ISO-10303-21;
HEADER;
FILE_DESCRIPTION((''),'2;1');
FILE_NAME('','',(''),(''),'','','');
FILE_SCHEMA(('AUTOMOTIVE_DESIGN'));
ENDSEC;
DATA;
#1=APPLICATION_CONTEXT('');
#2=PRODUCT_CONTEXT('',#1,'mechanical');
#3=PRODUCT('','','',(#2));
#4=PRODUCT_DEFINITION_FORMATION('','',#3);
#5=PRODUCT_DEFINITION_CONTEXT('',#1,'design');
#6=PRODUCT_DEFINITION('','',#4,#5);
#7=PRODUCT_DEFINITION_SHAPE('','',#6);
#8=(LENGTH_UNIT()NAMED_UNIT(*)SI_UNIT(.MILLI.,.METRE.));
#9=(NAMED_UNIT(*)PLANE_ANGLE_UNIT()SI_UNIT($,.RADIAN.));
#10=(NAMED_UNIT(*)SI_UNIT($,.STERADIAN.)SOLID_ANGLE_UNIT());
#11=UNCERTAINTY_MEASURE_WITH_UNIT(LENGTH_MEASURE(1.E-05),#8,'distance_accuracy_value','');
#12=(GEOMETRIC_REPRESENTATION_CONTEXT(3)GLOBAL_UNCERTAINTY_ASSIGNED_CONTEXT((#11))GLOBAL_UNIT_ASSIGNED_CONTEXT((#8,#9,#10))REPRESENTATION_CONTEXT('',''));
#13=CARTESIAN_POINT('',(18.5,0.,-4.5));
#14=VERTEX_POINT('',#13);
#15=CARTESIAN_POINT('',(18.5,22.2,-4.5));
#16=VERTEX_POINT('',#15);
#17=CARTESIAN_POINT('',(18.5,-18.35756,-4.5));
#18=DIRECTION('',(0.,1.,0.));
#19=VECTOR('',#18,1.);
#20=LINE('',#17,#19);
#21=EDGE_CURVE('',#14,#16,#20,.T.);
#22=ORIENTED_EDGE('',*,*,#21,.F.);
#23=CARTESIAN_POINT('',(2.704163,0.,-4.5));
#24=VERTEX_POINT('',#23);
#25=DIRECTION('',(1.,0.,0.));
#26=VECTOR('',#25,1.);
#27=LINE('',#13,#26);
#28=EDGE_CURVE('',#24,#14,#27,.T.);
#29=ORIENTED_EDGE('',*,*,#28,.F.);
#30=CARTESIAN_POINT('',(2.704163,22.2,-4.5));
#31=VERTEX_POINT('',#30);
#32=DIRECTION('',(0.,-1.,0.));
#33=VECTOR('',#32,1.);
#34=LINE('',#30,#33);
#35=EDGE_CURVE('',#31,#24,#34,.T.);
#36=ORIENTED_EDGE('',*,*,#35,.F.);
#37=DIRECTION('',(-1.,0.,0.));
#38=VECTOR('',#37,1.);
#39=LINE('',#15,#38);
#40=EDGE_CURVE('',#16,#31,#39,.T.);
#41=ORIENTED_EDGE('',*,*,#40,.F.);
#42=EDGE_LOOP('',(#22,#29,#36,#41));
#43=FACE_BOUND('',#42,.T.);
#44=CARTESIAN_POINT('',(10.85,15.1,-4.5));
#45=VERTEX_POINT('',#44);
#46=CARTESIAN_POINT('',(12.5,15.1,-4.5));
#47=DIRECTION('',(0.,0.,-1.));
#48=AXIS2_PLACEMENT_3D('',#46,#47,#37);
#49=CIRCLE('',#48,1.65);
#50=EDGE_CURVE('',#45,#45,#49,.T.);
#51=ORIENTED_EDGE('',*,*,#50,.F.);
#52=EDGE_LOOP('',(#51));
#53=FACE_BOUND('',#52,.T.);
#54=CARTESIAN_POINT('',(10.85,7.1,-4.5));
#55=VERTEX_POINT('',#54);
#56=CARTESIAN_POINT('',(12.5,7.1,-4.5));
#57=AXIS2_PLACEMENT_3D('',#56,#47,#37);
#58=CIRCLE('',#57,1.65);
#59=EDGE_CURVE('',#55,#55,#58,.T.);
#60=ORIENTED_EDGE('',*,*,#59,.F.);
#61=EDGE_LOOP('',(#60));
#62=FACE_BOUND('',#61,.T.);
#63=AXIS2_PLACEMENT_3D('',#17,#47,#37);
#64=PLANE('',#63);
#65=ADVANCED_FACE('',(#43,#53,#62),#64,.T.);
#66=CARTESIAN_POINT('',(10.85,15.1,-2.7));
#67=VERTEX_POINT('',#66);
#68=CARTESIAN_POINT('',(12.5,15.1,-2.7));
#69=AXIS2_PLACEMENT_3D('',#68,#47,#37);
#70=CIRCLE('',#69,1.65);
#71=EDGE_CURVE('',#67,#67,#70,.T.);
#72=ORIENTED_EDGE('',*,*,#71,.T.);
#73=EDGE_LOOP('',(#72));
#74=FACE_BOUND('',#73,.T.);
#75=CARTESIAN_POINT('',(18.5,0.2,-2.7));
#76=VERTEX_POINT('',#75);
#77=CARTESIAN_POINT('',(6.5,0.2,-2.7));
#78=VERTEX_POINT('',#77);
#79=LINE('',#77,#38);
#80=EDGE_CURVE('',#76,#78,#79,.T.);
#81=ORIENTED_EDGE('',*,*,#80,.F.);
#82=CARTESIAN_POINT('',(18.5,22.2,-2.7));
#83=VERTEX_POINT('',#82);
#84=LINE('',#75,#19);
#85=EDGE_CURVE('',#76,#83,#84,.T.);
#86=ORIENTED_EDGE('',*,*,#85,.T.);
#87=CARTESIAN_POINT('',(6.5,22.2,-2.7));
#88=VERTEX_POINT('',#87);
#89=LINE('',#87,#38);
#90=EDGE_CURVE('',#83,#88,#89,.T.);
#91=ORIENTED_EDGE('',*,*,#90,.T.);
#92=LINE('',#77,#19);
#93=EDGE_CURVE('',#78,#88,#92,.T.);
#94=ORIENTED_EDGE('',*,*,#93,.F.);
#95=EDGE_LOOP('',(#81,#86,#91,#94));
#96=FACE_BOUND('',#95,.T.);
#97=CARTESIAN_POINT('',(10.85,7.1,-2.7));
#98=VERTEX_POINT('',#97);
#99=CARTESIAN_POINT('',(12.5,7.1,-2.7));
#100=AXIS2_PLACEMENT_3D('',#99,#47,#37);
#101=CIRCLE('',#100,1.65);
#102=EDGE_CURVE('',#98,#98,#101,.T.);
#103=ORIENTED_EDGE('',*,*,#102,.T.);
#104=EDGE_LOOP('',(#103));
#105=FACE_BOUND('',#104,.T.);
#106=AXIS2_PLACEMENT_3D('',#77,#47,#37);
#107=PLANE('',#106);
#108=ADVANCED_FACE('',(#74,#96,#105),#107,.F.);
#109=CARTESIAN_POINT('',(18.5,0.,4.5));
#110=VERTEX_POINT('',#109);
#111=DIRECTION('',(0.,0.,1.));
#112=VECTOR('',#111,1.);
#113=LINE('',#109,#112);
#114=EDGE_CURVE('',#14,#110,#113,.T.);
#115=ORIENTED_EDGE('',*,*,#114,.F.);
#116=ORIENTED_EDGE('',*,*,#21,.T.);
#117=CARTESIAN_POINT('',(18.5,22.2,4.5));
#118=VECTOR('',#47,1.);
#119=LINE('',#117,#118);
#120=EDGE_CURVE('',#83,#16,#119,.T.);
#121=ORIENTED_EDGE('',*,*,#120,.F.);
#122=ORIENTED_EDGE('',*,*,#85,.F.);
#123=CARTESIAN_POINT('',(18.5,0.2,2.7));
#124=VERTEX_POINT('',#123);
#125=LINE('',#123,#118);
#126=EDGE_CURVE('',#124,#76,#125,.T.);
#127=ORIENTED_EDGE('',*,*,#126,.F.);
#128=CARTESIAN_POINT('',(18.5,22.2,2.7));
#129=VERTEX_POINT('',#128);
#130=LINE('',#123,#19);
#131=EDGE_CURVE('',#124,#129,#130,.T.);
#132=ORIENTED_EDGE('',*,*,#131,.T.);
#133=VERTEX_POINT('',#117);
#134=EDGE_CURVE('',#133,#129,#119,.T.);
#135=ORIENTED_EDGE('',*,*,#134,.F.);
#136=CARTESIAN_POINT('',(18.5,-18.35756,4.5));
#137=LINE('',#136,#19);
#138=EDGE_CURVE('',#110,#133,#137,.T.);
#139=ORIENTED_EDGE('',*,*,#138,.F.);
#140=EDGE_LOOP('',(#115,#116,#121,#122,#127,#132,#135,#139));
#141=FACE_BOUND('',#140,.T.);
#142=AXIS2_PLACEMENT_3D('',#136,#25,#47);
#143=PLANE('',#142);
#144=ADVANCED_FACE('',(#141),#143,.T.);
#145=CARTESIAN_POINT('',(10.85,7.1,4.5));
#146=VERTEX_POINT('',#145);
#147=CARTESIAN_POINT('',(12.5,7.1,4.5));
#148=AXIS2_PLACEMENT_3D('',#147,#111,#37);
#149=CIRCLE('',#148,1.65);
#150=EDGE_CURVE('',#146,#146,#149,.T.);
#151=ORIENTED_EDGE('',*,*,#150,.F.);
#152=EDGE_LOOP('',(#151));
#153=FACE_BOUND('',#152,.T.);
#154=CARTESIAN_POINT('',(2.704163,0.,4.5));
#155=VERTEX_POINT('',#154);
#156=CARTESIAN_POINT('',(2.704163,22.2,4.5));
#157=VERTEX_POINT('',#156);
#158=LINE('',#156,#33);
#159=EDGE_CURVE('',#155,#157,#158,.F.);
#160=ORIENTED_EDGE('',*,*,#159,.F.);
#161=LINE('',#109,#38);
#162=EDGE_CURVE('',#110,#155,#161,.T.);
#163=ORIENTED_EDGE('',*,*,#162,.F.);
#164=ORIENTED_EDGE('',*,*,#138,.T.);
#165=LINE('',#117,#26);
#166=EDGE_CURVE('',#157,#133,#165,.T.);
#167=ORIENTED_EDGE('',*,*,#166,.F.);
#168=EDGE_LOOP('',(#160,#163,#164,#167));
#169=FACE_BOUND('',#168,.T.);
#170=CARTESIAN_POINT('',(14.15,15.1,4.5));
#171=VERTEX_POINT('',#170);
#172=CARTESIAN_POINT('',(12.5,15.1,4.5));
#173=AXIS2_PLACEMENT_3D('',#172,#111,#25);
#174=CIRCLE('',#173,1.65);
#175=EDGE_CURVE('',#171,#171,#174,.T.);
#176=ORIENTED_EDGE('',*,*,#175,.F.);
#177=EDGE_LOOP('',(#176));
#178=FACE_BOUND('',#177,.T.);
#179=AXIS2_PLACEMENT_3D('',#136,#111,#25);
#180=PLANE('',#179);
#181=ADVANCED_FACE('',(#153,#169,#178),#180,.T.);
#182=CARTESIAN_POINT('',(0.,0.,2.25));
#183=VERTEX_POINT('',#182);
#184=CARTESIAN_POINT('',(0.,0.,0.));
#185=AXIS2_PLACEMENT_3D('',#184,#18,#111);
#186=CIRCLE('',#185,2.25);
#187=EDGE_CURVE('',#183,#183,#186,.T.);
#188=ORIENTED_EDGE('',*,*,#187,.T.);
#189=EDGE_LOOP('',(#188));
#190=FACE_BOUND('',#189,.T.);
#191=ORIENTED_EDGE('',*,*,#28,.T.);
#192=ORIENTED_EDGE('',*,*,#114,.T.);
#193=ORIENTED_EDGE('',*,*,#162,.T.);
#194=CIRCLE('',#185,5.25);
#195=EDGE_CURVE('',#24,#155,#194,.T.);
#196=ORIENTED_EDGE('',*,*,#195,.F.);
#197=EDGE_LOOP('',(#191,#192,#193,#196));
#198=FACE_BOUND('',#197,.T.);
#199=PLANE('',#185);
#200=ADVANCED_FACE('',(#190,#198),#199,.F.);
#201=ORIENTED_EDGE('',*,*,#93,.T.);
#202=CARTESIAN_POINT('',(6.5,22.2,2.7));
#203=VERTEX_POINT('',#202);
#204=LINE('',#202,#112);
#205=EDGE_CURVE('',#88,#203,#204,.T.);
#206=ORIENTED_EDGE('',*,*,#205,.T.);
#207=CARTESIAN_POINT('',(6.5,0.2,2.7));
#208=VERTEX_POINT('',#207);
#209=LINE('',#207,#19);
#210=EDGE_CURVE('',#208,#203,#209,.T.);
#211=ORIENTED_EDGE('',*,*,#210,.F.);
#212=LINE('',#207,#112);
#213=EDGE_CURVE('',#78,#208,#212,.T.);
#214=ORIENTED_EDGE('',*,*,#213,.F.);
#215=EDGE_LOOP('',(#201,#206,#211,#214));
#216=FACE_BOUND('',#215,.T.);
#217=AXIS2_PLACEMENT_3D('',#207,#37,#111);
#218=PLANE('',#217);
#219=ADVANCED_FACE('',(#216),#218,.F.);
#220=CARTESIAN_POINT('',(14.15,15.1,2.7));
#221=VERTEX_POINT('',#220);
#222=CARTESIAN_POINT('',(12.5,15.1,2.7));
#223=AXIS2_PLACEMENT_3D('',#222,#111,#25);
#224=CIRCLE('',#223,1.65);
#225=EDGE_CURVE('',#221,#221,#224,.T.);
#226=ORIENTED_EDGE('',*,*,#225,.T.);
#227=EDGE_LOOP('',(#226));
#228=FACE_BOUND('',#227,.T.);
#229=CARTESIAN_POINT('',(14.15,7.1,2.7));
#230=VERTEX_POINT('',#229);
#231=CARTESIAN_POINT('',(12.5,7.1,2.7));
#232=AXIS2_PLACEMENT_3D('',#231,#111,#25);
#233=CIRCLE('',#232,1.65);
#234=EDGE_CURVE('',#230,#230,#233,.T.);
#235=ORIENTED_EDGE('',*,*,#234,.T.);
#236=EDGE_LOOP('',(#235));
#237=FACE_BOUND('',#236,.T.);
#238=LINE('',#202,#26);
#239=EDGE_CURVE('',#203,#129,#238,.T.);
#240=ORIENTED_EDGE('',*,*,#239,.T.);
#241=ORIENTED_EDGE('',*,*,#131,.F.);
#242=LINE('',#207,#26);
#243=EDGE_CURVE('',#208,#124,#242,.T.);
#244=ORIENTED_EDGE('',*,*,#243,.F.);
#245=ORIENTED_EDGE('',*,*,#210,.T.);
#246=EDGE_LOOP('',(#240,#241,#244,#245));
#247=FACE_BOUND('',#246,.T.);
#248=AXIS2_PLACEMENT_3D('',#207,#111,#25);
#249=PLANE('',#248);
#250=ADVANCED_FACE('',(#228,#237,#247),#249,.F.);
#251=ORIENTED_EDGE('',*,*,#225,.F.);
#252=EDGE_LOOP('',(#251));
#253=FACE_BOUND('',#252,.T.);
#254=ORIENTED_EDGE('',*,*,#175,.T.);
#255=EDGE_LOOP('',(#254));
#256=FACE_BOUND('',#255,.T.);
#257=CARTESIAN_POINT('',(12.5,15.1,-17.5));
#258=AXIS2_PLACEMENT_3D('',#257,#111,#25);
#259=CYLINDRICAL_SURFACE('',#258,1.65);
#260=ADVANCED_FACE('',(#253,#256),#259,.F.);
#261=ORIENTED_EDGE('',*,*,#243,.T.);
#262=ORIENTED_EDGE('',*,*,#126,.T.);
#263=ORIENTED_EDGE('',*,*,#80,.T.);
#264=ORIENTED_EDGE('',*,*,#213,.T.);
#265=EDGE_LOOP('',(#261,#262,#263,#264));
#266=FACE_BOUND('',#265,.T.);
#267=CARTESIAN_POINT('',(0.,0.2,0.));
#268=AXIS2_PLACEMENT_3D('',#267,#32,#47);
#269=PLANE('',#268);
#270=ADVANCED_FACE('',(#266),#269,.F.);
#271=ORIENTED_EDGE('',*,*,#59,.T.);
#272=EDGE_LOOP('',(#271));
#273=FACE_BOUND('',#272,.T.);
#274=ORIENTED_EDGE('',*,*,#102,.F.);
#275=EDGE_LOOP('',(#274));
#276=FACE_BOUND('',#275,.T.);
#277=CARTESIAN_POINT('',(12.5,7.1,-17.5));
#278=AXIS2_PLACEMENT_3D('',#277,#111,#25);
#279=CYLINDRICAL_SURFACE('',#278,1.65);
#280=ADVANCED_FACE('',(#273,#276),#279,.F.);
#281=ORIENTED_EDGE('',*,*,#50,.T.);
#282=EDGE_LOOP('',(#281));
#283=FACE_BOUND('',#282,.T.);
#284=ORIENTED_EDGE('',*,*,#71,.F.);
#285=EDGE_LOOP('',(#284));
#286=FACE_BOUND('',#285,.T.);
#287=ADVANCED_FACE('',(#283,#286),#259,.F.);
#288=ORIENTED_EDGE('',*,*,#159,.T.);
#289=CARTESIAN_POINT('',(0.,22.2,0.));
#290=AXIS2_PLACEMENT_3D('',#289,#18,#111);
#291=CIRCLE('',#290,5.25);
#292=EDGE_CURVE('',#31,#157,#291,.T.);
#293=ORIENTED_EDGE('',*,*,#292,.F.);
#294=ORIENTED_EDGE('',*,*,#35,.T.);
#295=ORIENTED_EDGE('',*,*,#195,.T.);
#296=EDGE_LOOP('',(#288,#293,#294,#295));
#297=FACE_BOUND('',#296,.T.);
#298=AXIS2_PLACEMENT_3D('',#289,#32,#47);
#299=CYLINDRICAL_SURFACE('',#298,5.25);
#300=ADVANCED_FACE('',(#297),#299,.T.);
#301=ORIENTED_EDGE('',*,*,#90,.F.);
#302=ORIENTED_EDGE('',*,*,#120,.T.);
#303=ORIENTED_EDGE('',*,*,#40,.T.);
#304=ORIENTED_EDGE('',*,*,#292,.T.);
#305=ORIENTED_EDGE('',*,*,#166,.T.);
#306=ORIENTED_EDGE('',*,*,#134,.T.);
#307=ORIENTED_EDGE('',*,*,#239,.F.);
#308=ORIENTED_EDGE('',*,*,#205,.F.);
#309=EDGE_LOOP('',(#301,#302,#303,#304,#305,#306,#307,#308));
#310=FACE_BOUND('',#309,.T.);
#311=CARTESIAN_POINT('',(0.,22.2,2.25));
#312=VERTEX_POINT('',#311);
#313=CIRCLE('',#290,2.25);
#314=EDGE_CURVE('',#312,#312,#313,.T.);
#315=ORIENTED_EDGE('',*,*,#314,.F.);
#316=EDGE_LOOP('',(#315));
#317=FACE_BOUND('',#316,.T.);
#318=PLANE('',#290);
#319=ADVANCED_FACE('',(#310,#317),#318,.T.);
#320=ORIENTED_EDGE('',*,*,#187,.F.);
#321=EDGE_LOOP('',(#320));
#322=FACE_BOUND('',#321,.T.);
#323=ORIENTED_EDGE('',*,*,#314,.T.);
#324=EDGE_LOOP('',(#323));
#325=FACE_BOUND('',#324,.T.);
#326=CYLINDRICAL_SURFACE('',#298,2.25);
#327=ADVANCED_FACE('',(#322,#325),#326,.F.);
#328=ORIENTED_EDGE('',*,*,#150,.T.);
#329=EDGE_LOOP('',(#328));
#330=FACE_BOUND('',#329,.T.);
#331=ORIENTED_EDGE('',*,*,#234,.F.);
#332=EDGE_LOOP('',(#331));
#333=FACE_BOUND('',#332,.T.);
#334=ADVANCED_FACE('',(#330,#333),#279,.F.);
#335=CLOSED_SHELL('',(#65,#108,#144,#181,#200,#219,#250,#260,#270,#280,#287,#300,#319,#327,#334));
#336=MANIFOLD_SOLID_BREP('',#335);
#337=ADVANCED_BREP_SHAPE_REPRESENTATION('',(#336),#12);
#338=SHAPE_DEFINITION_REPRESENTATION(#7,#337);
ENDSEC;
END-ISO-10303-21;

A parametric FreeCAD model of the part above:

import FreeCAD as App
import Part
import Sketcher

doc = App.newDocument("Part")
body = doc.addObject("PartDesign::Body", "Body")

sketch1 = body.newObject("Sketcher::SketchObject", "Sketch")
sketch1.AttachmentSupport = (doc.getObject("XZ_Plane"), [""])
sketch1.MapMode = "FlatFace"
sketch1.addGeometry(Part.Circle(App.Vector(0, 0, 0), App.Vector(0, 0, 1), 5.25), False)
sketch1.addGeometry(Part.Circle(App.Vector(0, 0, 0), App.Vector(0, 0, 1), 2.25), False)
sketch1.addConstraint(Sketcher.Constraint("Coincident", 0, 3, -1, 1))
sketch1.addConstraint(Sketcher.Constraint("Coincident", 1, 3, -1, 1))
sketch1.addConstraint(Sketcher.Constraint("Diameter", 0, 10.5))
sketch1.addConstraint(Sketcher.Constraint("Diameter", 1, 4.5))
pad1 = body.newObject("PartDesign::Pad", "Pad")
pad1.Profile = sketch1
pad1.Length = 22.2
pad1.Reversed = True

sketch2 = body.newObject("Sketcher::SketchObject", "Sketch001")
sketch2.AttachmentSupport = (doc.getObject("XZ_Plane"), [""])
sketch2.MapMode = "FlatFace"
sketch2.AttachmentOffset = App.Placement(App.Vector(0, 0, -22.2), App.Rotation())
sketch2.addGeometry(Part.LineSegment(App.Vector(2.5, -4.5, 0), App.Vector(2.5, 4.5, 0)), False)
sketch2.addGeometry(Part.LineSegment(App.Vector(2.5, 4.5, 0), App.Vector(18.5, 4.5, 0)), False)
sketch2.addGeometry(Part.LineSegment(App.Vector(18.5, 4.5, 0), App.Vector(18.5, -4.5, 0)), False)
sketch2.addGeometry(Part.LineSegment(App.Vector(18.5, -4.5, 0), App.Vector(2.5, -4.5, 0)), False)
sketch2.addConstraint(Sketcher.Constraint("Coincident", 0, 2, 1, 1))
sketch2.addConstraint(Sketcher.Constraint("Coincident", 1, 2, 2, 1))
sketch2.addConstraint(Sketcher.Constraint("Coincident", 2, 2, 3, 1))
sketch2.addConstraint(Sketcher.Constraint("Coincident", 3, 2, 0, 1))
sketch2.addConstraint(Sketcher.Constraint("Vertical", 0))
sketch2.addConstraint(Sketcher.Constraint("Horizontal", 1))
sketch2.addConstraint(Sketcher.Constraint("Vertical", 2))
sketch2.addConstraint(Sketcher.Constraint("Horizontal", 3))
sketch2.addConstraint(Sketcher.Constraint("DistanceX", 1, 1, 1, 2, 16.0))
sketch2.addConstraint(Sketcher.Constraint("DistanceY", 0, 1, 0, 2, 9.0))
sketch2.addConstraint(Sketcher.Constraint("DistanceX", -1, 1, 0, 2, 2.5))
sketch2.addConstraint(Sketcher.Constraint("DistanceY", -1, 1, 0, 2, 4.5))
pad2 = body.newObject("PartDesign::Pad", "Pad001")
pad2.Profile = sketch2
pad2.Length = 22.2

sketch3 = body.newObject("Sketcher::SketchObject", "Sketch002")
sketch3.AttachmentSupport = (doc.getObject("XZ_Plane"), [""])
sketch3.MapMode = "FlatFace"
sketch3.AttachmentOffset = App.Placement(App.Vector(0, 0, -22.2), App.Rotation())
sketch3.addGeometry(Part.LineSegment(App.Vector(6.5, -2.7, 0), App.Vector(6.5, 2.7, 0)), False)
sketch3.addGeometry(Part.LineSegment(App.Vector(6.5, 2.7, 0), App.Vector(18.5, 2.7, 0)), False)
sketch3.addGeometry(Part.LineSegment(App.Vector(18.5, 2.7, 0), App.Vector(18.5, -2.7, 0)), False)
sketch3.addGeometry(Part.LineSegment(App.Vector(18.5, -2.7, 0), App.Vector(6.5, -2.7, 0)), False)
sketch3.addConstraint(Sketcher.Constraint("Coincident", 0, 2, 1, 1))
sketch3.addConstraint(Sketcher.Constraint("Coincident", 1, 2, 2, 1))
sketch3.addConstraint(Sketcher.Constraint("Coincident", 2, 2, 3, 1))
sketch3.addConstraint(Sketcher.Constraint("Coincident", 3, 2, 0, 1))
sketch3.addConstraint(Sketcher.Constraint("Vertical", 0))
sketch3.addConstraint(Sketcher.Constraint("Horizontal", 1))
sketch3.addConstraint(Sketcher.Constraint("Vertical", 2))
sketch3.addConstraint(Sketcher.Constraint("Horizontal", 3))
sketch3.addConstraint(Sketcher.Constraint("DistanceX", 1, 1, 1, 2, 12.0))
sketch3.addConstraint(Sketcher.Constraint("DistanceY", 0, 1, 0, 2, 5.4))
sketch3.addConstraint(Sketcher.Constraint("DistanceX", -1, 1, 0, 2, 6.5))
sketch3.addConstraint(Sketcher.Constraint("DistanceY", -1, 1, 0, 2, 2.7))
pocket1 = body.newObject("PartDesign::Pocket", "Pocket")
pocket1.Profile = sketch3
pocket1.Length = 22
pocket1.Reversed = True

sketch4 = body.newObject("Sketcher::SketchObject", "Sketch003")
sketch4.AttachmentSupport = (doc.getObject("XY_Plane"), [""])
sketch4.MapMode = "FlatFace"
sketch4.AttachmentOffset = App.Placement(App.Vector(0, 0, 4.5), App.Rotation())
sketch4.addGeometry(Part.Circle(App.Vector(12.5, 15.1, 0), App.Vector(0, 0, 1), 1.65), False)
sketch4.addGeometry(Part.Circle(App.Vector(12.5, 7.1, 0), App.Vector(0, 0, 1), 1.65), False)
sketch4.addConstraint(Sketcher.Constraint("Equal", 0, 1))
sketch4.addConstraint(Sketcher.Constraint("Vertical", 0, 3, 1, 3))
sketch4.addConstraint(Sketcher.Constraint("Diameter", 0, 3.3))
sketch4.addConstraint(Sketcher.Constraint("DistanceY", 1, 3, 0, 3, 8.0))
sketch4.addConstraint(Sketcher.Constraint("DistanceX", -1, 1, 0, 3, 12.5))
sketch4.addConstraint(Sketcher.Constraint("DistanceY", -1, 1, 0, 3, 15.1))
pocket2 = body.newObject("PartDesign::Pocket", "Pocket001")
pocket2.Profile = sketch4
pocket2.Length = 22

doc.recompute()
